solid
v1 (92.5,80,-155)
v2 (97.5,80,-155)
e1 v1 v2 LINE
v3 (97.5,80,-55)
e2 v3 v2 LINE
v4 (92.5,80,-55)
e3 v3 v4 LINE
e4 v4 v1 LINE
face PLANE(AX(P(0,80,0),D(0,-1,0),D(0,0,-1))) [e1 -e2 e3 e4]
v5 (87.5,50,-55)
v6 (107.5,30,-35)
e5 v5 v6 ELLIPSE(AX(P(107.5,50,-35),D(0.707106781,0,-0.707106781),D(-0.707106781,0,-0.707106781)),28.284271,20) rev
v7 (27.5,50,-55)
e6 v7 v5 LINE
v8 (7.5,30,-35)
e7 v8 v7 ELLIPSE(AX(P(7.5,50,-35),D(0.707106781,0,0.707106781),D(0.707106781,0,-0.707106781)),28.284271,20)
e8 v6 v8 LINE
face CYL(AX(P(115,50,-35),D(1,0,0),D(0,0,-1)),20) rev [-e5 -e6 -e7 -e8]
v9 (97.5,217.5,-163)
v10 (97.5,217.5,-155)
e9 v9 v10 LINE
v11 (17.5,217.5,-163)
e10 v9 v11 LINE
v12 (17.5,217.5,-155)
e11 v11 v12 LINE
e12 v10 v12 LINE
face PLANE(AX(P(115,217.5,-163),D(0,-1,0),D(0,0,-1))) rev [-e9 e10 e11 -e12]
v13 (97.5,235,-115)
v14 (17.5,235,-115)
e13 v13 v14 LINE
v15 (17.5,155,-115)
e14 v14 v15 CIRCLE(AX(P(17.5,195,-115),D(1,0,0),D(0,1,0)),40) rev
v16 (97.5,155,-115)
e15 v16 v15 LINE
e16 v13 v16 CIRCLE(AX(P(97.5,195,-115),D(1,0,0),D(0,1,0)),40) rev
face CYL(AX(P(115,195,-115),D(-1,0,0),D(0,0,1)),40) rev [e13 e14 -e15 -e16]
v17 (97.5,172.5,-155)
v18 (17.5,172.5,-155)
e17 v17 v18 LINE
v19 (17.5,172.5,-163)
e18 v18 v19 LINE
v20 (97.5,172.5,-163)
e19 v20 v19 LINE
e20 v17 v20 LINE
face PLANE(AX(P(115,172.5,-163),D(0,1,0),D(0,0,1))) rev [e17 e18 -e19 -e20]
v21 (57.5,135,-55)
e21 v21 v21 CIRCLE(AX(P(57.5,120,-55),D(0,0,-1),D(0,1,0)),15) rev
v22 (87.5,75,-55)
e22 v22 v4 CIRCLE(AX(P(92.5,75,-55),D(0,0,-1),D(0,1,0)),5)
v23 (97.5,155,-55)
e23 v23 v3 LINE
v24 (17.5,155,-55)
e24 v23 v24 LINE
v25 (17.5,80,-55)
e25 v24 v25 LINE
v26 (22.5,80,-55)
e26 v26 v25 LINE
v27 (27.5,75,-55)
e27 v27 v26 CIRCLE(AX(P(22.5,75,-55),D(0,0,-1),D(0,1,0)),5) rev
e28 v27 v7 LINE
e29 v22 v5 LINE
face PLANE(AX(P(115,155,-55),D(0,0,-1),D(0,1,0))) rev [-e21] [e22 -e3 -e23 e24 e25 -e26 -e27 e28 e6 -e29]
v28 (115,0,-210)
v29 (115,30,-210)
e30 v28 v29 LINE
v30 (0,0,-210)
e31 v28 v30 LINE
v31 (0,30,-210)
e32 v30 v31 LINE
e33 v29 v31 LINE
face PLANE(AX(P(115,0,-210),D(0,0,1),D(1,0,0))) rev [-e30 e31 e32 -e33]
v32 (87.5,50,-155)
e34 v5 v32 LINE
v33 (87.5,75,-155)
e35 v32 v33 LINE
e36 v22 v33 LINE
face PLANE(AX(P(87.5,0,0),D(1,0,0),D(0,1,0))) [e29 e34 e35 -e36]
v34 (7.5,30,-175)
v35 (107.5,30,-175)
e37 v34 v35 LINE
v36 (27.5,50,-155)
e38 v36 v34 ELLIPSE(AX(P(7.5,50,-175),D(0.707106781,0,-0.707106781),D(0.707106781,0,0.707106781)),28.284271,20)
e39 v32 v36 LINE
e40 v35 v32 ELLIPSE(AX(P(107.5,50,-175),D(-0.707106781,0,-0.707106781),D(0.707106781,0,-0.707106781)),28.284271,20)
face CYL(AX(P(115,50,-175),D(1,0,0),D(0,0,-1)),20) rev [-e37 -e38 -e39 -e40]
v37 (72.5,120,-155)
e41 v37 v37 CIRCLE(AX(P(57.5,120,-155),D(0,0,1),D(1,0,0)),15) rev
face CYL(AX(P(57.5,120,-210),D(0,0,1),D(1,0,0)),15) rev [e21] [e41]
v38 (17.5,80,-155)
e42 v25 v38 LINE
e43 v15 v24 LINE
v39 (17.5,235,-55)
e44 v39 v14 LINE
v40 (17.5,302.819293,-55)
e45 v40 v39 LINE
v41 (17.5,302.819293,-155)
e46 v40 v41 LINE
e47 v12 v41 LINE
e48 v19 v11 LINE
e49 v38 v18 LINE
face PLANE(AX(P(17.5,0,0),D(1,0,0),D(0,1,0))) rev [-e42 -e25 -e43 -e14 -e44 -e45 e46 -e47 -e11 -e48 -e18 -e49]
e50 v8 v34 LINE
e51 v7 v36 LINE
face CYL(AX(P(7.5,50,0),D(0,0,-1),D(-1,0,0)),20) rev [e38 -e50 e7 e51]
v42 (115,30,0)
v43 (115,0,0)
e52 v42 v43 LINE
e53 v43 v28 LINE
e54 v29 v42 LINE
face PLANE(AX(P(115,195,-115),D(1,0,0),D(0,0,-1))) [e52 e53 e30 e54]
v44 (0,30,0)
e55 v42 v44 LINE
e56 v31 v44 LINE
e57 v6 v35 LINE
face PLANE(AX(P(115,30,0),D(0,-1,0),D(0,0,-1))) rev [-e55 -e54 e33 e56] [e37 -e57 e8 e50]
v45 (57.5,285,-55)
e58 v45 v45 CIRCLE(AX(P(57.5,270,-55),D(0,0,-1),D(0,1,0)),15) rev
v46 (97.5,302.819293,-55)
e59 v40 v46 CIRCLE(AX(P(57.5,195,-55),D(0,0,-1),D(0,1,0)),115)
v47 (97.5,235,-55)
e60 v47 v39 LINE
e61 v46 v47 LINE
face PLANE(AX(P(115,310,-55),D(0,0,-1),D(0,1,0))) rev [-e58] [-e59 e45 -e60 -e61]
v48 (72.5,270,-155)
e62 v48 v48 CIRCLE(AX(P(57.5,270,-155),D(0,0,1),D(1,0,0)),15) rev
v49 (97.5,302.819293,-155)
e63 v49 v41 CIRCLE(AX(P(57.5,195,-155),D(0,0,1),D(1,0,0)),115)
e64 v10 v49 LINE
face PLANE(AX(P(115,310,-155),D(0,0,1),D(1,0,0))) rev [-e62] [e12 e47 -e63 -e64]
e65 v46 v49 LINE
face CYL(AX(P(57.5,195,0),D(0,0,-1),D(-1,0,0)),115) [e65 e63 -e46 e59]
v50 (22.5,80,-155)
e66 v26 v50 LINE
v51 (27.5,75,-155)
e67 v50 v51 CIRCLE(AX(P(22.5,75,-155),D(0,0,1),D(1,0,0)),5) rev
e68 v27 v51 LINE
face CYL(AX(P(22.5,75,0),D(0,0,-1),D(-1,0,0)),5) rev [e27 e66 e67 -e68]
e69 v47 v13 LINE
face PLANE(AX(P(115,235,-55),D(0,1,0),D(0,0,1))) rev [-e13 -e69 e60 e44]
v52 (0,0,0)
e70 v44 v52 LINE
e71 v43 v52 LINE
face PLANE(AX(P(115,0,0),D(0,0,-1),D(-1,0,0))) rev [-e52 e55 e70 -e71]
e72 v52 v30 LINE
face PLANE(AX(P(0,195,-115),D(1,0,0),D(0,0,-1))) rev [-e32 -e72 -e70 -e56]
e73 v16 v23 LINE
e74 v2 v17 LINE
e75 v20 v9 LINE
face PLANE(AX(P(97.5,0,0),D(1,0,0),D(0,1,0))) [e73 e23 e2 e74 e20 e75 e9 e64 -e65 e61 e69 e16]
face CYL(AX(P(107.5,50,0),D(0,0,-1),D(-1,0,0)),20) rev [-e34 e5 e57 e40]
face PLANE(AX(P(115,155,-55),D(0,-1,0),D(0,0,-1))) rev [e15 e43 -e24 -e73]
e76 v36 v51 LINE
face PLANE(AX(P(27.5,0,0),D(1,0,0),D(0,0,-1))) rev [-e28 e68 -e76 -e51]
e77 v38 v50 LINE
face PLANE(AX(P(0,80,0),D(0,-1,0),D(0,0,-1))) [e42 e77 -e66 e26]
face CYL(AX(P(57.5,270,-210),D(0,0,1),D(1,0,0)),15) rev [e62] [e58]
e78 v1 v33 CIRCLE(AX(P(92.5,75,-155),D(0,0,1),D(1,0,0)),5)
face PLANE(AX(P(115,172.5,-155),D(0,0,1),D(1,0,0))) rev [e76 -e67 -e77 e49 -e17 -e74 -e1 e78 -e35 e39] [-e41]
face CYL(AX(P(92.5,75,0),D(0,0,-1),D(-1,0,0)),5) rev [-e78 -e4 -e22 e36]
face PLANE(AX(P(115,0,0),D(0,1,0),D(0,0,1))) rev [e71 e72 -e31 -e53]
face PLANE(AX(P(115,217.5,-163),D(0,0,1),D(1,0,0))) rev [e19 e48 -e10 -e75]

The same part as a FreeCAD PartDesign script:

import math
import FreeCAD as App
import Part
import Sketcher
from FreeCAD import Vector
Q = App.Units.Quantity


def edges_at(feature, points):
    """Names of the edges that pass closest to the given points."""
    edges = feature.Shape.Edges
    near = lambda p: min(range(len(edges)), key=lambda i: edges[i].distToShape(Part.Vertex(*p))[0])
    return sorted({f"Edge{near(p) + 1}" for p in points})

doc = App.newDocument("Part")
body = doc.addObject("PartDesign::Body", "Body")

# Sketch on YZ plane
sketch1 = doc.addObject("Sketcher::SketchObject", "Sketch")
body.addObject(sketch1)
sketch1.AttachmentSupport = (doc.YZ_Plane, [""])
sketch1.MapMode = "FlatFace"
sketch1.addGeometry([
    Part.LineSegment(Vector(0, 0, 0), Vector(0, -210, 0)),  # 0
    Part.LineSegment(Vector(0, -210, 0), Vector(30, -210, 0)),  # 1
    Part.LineSegment(Vector(30, -210, 0), Vector(30, -155, 0)),  # 2
    Part.LineSegment(Vector(30, -155, 0), Vector(172, -155, 0)),  # 3
    Part.LineSegment(Vector(172, -155, 0), Vector(172, -163, 0)),  # 4
    Part.LineSegment(Vector(172, -163, 0), Vector(218, -163, 0)),  # 5
    Part.LineSegment(Vector(218, -163, 0), Vector(218, -155, 0)),  # 6
    Part.LineSegment(Vector(218, -155, 0), Vector(310, -155, 0)),  # 7
    Part.LineSegment(Vector(310, -155, 0), Vector(310, -55, 0)),  # 8
    Part.LineSegment(Vector(310, -55, 0), Vector(235, -55, 0)),  # 9
    Part.LineSegment(Vector(235, -55, 0), Vector(235, -115, 0)),  # 10
    Part.ArcOfCircle(Part.Circle(Vector(195, -115, 0), Vector(0, 0, 1), 40), math.radians(180), math.radians(360)),  # 11
    Part.LineSegment(Vector(155, -115, 0), Vector(155, -55, 0)),  # 12
    Part.LineSegment(Vector(155, -55, 0), Vector(30, -55, 0)),  # 13
    Part.LineSegment(Vector(30, -55, 0), Vector(30, 0, 0)),  # 14
    Part.LineSegment(Vector(30, 0, 0), Vector(0, 0, 0)),  # 15
], False)
sketch1.addConstraint([
    Sketcher.Constraint("Coincident", 0, 2, 1, 1),
    Sketcher.Constraint("Coincident", 1, 2, 2, 1),
    Sketcher.Constraint("Coincident", 2, 2, 3, 1),
    Sketcher.Constraint("Coincident", 3, 2, 4, 1),
    Sketcher.Constraint("Coincident", 4, 2, 5, 1),
    Sketcher.Constraint("Coincident", 5, 2, 6, 1),
    Sketcher.Constraint("Coincident", 6, 2, 7, 1),
    Sketcher.Constraint("Coincident", 7, 2, 8, 1),
    Sketcher.Constraint("Coincident", 8, 2, 9, 1),
    Sketcher.Constraint("Coincident", 9, 2, 10, 1),
    Sketcher.Constraint("Tangent", 10, 2, 11, 2),
    Sketcher.Constraint("Tangent", 11, 1, 12, 1),
    Sketcher.Constraint("Coincident", 12, 2, 13, 1),
    Sketcher.Constraint("Coincident", 13, 2, 14, 1),
    Sketcher.Constraint("Coincident", 14, 2, 15, 1),
    Sketcher.Constraint("Coincident", 15, 2, 0, 1),
    Sketcher.Constraint("Vertical", 0),
    Sketcher.Constraint("Horizontal", 1),
    Sketcher.Constraint("Vertical", 2),
    Sketcher.Constraint("Horizontal", 3),
    Sketcher.Constraint("Vertical", 4),
    Sketcher.Constraint("Horizontal", 5),
    Sketcher.Constraint("Vertical", 6),
    Sketcher.Constraint("Horizontal", 7),
    Sketcher.Constraint("Vertical", 8),
    Sketcher.Constraint("Horizontal", 9),
    Sketcher.Constraint("Vertical", 10),
    Sketcher.Constraint("Vertical", 12),
    Sketcher.Constraint("Horizontal", 13),
    Sketcher.Constraint("Vertical", 14),
    Sketcher.Constraint("Horizontal", 15),
    Sketcher.Constraint("Coincident", 15, 2, -1, 1),
    Sketcher.Constraint("Horizontal", 3, 2, 6, 2),
    Sketcher.Constraint("Horizontal", 9, 2, 12, 2),
    Sketcher.Constraint("Vertical", 2, 2, 13, 2),
    Sketcher.Constraint("Equal", 2, 14),
    Sketcher.Constraint("Radius", 11, Q("40 mm")),
    Sketcher.Constraint("DistanceX", 1, 1, 1, 2, Q("30 mm")),
    Sketcher.Constraint("DistanceX", 5, 1, 5, 2, Q("45 mm")),
    Sketcher.Constraint("DistanceX", 9, 2, 9, 1, Q("75 mm")),
    Sketcher.Constraint("DistanceX", 13, 2, 13, 1, Q("125 mm")),
    Sketcher.Constraint("DistanceY", 0, 2, 0, 1, Q("210 mm")),
    Sketcher.Constraint("DistanceY", 2, 1, 2, 2, Q("55 mm")),
    Sketcher.Constraint("DistanceY", 4, 2, 4, 1, Q("8 mm")),
    Sketcher.Constraint("DistanceY", 10, 2, 10, 1, Q("60 mm")),
    Sketcher.Constraint("DistanceX", 3, 1, 3, 2, Q("142.5 mm")),
])
pad1 = doc.addObject("PartDesign::Pad", "Pad")
body.addObject(pad1)
pad1.Profile = sketch1
pad1.Length = 115

# Sketch on XY plane
sketch2 = doc.addObject("Sketcher::SketchObject", "Sketch001")
body.addObject(sketch2)
sketch2.AttachmentSupport = (doc.XY_Plane, [""])
sketch2.MapMode = "FlatFace"
sketch2.AttachmentOffset = App.Placement(Vector(0, 0, -155), App.Rotation())
sketch2.addGeometry([
    Part.LineSegment(Vector(18, 80, 0), Vector(22, 80, 0)),  # 0
    Part.ArcOfCircle(Part.Circle(Vector(22, 75, 0), Vector(0, 0, 1), 5), math.radians(0), math.radians(90)),  # 1
    Part.LineSegment(Vector(28, 75, 0), Vector(28, 50, 0)),  # 2
    Part.ArcOfCircle(Part.Circle(Vector(8, 50, 0), Vector(0, 0, 1), 20), math.radians(-90), math.radians(0)),  # 3
    Part.LineSegment(Vector(8, 30, 0), Vector(0, 30, 0)),  # 4
    Part.LineSegment(Vector(0, 30, 0), Vector(0, 310, 0)),  # 5
    Part.LineSegment(Vector(0, 310, 0), Vector(58, 310, 0)),  # 6
    Part.ArcOfCircle(Part.Circle(Vector(57, 195, 0), Vector(0, 0, 1), 115), math.radians(90), math.radians(110)),  # 7
    Part.LineSegment(Vector(18, 303, 0), Vector(18, 80, 0)),  # 8
    Part.ArcOfCircle(Part.Circle(Vector(58, 195, 0), Vector(0, 0, 1), 115), math.radians(70), math.radians(90)),  # 9
    Part.LineSegment(Vector(58, 310, 0), Vector(115, 310, 0)),  # 10
    Part.LineSegment(Vector(115, 310, 0), Vector(115, 30, 0)),  # 11
    Part.LineSegment(Vector(115, 30, 0), Vector(108, 30, 0)),  # 12
    Part.ArcOfCircle(Part.Circle(Vector(107, 50, 0), Vector(0, 0, 1), 20), math.radians(180), math.radians(270)),  # 13
    Part.LineSegment(Vector(88, 50, 0), Vector(88, 75, 0)),  # 14
    Part.ArcOfCircle(Part.Circle(Vector(92, 75, 0), Vector(0, 0, 1), 5), math.radians(90), math.radians(180)),  # 15
    Part.LineSegment(Vector(92, 80, 0), Vector(98, 80, 0)),  # 16
    Part.LineSegment(Vector(98, 80, 0), Vector(98, 303, 0)),  # 17
], False)
sketch2.addConstraint([
    Sketcher.Constraint("Tangent", 0, 2, 1, 2),
    Sketcher.Constraint("Tangent", 1, 1, 2, 1),
    Sketcher.Constraint("Tangent", 2, 2, 3, 2),
    Sketcher.Constraint("Tangent", 3, 1, 4, 1),
    Sketcher.Constraint("Coincident", 4, 2, 5, 1),
    Sketcher.Constraint("Coincident", 5, 2, 6, 1),
    Sketcher.Constraint("Tangent", 6, 2, 7, 1),
    Sketcher.Constraint("Coincident", 7, 2, 8, 1),
    Sketcher.Constraint("Coincident", 8, 2, 0, 1),
    Sketcher.Constraint("Tangent", 9, 2, 10, 1),
    Sketcher.Constraint("Coincident", 10, 2, 11, 1),
    Sketcher.Constraint("Coincident", 11, 2, 12, 1),
    Sketcher.Constraint("Tangent", 12, 2, 13, 2),
    Sketcher.Constraint("Tangent", 13, 1, 14, 1),
    Sketcher.Constraint("Tangent", 14, 2, 15, 2),
    Sketcher.Constraint("Tangent", 15, 1, 16, 1),
    Sketcher.Constraint("Coincident", 16, 2, 17, 1),
    Sketcher.Constraint("Coincident", 17, 2, 9, 1),
    Sketcher.Constraint("Horizontal", 0),
    Sketcher.Constraint("Vertical", 2),
    Sketcher.Constraint("Horizontal", 4),
    Sketcher.Constraint("Vertical", 5),
    Sketcher.Constraint("Horizontal", 6),
    Sketcher.Constraint("Vertical", 8),
    Sketcher.Constraint("Horizontal", 10),
    Sketcher.Constraint("Vertical", 11),
    Sketcher.Constraint("Horizontal", 12),
    Sketcher.Constraint("Vertical", 14),
    Sketcher.Constraint("Horizontal", 16),
    Sketcher.Constraint("Vertical", 17),
    Sketcher.Constraint("Coincident", 9, 3, 7, 3),
    Sketcher.Constraint("Equal", 7, 9),
    Sketcher.Constraint("Equal", 3, 13),
    Sketcher.Constraint("Equal", 1, 15),
    Sketcher.Constraint("PointOnObject", 4, 2, -2),
    Sketcher.Constraint("Horizontal", 3, 3, 13, 3),
    Sketcher.Constraint("Horizontal", 1, 3, 15, 3),
    Sketcher.Constraint("Horizontal", 7, 2, 17, 2),
    Sketcher.Constraint("Equal", 6, 10),
    Sketcher.Constraint("Equal", 4, 12),
    Sketcher.Constraint("Radius", 1, Q("5 mm")),
    Sketcher.Constraint("Radius", 3, Q("20 mm")),
    Sketcher.Constraint("Radius", 7, Q("115 mm")),
    Sketcher.Constraint("DistanceX", 0, 1, 0, 2, Q("5 mm")),
    Sketcher.Constraint("DistanceY", 2, 2, 2, 1, Q("25 mm")),
    Sketcher.Constraint("DistanceY", 5, 1, 5, 2, Q("280 mm")),
    Sketcher.Constraint("DistanceX", 4, 2, 4, 1, Q("7.5 mm")),
    Sketcher.Constraint("DistanceX", 6, 1, 6, 2, Q("57.5 mm")),
    Sketcher.Constraint("DistanceY", -1, 1, 1, 3, Q("75 mm")),
])
pocket1 = doc.addObject("PartDesign::Pocket", "Pocket")
body.addObject(pocket1)
pocket1.Profile = sketch2
pocket1.Type = "ThroughAll"
pocket1.Midplane = True
doc.recompute()

fillet = doc.addObject("PartDesign::Fillet", "Fillet")
body.addObject(fillet)
fillet.Base = (pocket1, edges_at(pocket1, [(57.5, 30, -155), (57.5, 30, -55)]))
fillet.Radius = 20

# Sketch on XY plane
sketch3 = doc.addObject("Sketcher::SketchObject", "Sketch002")
body.addObject(sketch3)
sketch3.AttachmentSupport = (doc.XY_Plane, [""])
sketch3.MapMode = "FlatFace"
sketch3.AttachmentOffset = App.Placement(Vector(0, 0, -155), App.Rotation())
sketch3.addGeometry([
    Part.Circle(Vector(58, 120, 0), Vector(0, 0, 1), 15),
    Part.Circle(Vector(58, 270, 0), Vector(0, 0, 1), 15),
], False)
sketch3.addConstraint([
    Sketcher.Constraint("Equal", 0, 1),
    Sketcher.Constraint("Vertical", 0, 3, 1, 3),
    Sketcher.Constraint("Diameter", 0, Q("30 mm")),
    Sketcher.Constraint("DistanceY", -1, 1, 0, 3, Q("120 mm")),
    Sketcher.Constraint("DistanceY", -1, 1, 1, 3, Q("270 mm")),
    Sketcher.Constraint("DistanceX", -1, 1, 0, 3, Q("57.5 mm")),
])
pocket2 = doc.addObject("PartDesign::Pocket", "Pocket001")
body.addObject(pocket2)
pocket2.Profile = sketch3
pocket2.Type = "ThroughAll"
pocket2.Midplane = True

doc.recompute()
